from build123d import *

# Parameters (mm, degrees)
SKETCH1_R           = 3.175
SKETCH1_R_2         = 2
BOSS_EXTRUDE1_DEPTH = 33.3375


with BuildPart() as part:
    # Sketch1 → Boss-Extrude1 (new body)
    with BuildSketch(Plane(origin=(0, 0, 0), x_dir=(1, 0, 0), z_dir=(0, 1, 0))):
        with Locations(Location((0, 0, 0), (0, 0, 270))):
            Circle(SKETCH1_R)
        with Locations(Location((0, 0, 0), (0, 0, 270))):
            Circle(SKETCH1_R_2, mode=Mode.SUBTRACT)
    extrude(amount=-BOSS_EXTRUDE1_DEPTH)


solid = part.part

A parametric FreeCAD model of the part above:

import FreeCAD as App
import Part
import Sketcher
from FreeCAD import Vector
Q = App.Units.Quantity

doc = App.newDocument("Part")
body = doc.addObject("PartDesign::Body", "Body")

# Sketch on XZ plane
sketch1 = doc.addObject("Sketcher::SketchObject", "Sketch")
body.addObject(sketch1)
sketch1.AttachmentSupport = (doc.XZ_Plane, [""])
sketch1.MapMode = "FlatFace"
sketch1.addGeometry([
    Part.Circle(Vector(0, 0, 0), Vector(0, 0, 1), 3.175),
    Part.Circle(Vector(0, 0, 0), Vector(0, 0, 1), 2),
], False)
sketch1.addConstraint([
    Sketcher.Constraint("Coincident", 0, 3, -1, 1),
    Sketcher.Constraint("Coincident", 1, 3, -1, 1),
    Sketcher.Constraint("Diameter", 0, Q("0.25 in")),
    Sketcher.Constraint("Diameter", 1, 4.0),
])
pad1 = doc.addObject("PartDesign::Pad", "Pad")
body.addObject(pad1)
pad1.Profile = sketch1
pad1.Length = Q("1.3125 in")

doc.recompute()
